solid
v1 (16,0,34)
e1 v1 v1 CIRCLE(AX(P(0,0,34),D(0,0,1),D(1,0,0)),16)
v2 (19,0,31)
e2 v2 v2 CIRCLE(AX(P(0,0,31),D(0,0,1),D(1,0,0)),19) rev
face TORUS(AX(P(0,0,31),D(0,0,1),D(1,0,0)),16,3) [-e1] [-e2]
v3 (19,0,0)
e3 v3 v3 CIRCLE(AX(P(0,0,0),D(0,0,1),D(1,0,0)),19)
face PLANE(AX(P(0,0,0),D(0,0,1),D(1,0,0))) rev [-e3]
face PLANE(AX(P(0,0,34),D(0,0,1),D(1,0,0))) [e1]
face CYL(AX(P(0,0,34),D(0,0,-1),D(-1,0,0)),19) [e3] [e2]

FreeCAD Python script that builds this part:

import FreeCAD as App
import Part
import Sketcher
from FreeCAD import Vector
Q = App.Units.Quantity


def edges_at(feature, points):
    """Names of the edges that pass closest to the given points."""
    edges = feature.Shape.Edges
    near = lambda p: min(range(len(edges)), key=lambda i: edges[i].distToShape(Part.Vertex(*p))[0])
    return sorted({f"Edge{near(p) + 1}" for p in points})

doc = App.newDocument("Part")
body = doc.addObject("PartDesign::Body", "Body")

# Sketch on XY plane
sketch1 = body.newObject("Sketcher::SketchObject", "Sketch")
sketch1.AttachmentSupport = (doc.getObject("XY_Plane"), [""])
sketch1.MapMode = "FlatFace"
sketch1.addGeometry(Part.Circle(Vector(0, 0, 0), Vector(0, 0, 1), 19), False)
sketch1.addConstraint([
    Sketcher.Constraint("Coincident", 0, 3, -1, 1),
    Sketcher.Constraint("Diameter", 0, Q("38 mm")),
])
pad1 = body.newObject("PartDesign::Pad", "Pad")
pad1.Profile = sketch1
pad1.Length = 34
doc.recompute()

fillet = body.newObject("PartDesign::Fillet", "Fillet")
fillet.Base = (pad1, edges_at(pad1, [(-19, 0, 34)]))
fillet.Radius = 3

doc.recompute()
